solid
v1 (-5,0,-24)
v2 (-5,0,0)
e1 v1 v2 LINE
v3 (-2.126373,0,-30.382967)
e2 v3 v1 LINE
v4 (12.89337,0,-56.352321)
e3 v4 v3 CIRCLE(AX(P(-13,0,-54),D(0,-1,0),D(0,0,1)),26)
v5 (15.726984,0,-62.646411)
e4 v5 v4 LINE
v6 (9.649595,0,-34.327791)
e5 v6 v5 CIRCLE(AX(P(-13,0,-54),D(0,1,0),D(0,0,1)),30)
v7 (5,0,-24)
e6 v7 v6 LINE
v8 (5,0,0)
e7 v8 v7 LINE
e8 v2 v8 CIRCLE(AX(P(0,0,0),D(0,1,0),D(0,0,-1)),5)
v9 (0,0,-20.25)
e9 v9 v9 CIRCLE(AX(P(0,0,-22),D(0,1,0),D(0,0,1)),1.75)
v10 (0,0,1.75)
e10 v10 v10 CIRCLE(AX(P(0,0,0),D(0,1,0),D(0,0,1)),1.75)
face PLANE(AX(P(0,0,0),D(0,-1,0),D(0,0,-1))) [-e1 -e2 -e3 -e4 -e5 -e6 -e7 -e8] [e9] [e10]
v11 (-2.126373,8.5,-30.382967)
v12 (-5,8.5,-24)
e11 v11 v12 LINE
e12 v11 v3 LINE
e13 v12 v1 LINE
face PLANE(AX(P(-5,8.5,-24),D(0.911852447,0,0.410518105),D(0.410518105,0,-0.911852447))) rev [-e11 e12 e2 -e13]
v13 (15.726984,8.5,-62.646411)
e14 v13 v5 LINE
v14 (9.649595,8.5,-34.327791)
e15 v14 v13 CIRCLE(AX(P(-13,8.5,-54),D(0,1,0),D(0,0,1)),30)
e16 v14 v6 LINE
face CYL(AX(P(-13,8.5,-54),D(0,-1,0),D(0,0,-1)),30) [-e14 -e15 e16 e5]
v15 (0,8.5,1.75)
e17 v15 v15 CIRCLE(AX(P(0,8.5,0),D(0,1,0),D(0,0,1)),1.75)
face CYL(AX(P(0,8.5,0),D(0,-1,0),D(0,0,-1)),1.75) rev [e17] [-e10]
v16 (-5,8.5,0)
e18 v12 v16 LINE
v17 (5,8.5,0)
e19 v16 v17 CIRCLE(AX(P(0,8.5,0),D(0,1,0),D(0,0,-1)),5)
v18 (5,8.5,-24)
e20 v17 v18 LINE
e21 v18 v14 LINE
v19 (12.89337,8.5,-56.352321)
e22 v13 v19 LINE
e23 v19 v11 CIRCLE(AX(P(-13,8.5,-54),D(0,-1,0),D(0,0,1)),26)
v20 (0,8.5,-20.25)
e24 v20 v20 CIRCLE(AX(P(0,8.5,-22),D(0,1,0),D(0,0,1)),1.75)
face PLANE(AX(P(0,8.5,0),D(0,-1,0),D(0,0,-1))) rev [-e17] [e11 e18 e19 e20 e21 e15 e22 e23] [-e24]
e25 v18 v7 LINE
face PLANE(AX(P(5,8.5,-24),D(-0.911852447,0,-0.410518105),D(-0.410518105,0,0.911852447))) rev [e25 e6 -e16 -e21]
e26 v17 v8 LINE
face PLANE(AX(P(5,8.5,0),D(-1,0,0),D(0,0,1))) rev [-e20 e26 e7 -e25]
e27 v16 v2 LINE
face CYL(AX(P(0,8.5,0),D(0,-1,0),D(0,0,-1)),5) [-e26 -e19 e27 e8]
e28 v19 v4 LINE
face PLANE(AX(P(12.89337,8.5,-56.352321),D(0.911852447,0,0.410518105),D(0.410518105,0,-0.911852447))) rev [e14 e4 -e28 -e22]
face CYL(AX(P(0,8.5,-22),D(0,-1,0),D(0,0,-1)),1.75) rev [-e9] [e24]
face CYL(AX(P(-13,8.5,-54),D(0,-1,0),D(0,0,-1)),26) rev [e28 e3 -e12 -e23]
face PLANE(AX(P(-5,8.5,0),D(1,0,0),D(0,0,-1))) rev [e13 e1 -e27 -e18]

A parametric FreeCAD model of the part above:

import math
import FreeCAD as App
import Part
import Sketcher

V = App.Vector
Q = App.Units.Quantity

doc = App.newDocument("Part")
params = doc.addObject("Spreadsheet::Sheet", "Params")
for row, (alias, value) in enumerate([
    ("sketch1_radius", "5 mm"),
    ("sketch1_radius2", "30 mm"),
    ("sketch1_radius3", "26 mm"),
    ("sketch1_diameter", "3.5 mm"),
    ("sketch1_height", "24 mm"),
    ("pad1_length", "8.5 mm"),
], start=1):
    params.set(f"A{row}", alias)
    params.set(f"B{row}", "=" + value)
    params.setAlias(f"B{row}", alias)

body = doc.addObject("PartDesign::Body", "Body")

sketch1 = doc.addObject("Sketcher::SketchObject", "Sketch")
body.addObject(sketch1)
sketch1.AttachmentSupport = (doc.XZ_Plane, [""])
sketch1.MapMode = "FlatFace"
sketch1.addGeometry([
    Part.LineSegment(V(-5, -24, 0), V(-5, 0, 0)),
    Part.ArcOfCircle(Part.Circle(V(0, 0, 0), V(0, 0, 1), 5), math.radians(0), math.radians(180)),
    Part.LineSegment(V(5, 0, 0), V(5, -24, 0)),
    Part.LineSegment(V(5, -24, 0), V(9.649595, -34.327791, 0)),
    Part.ArcOfCircle(Part.Circle(V(-13, -54, 0), V(0, 0, 1), 30), math.radians(-16.751042), math.radians(40.975808)),
    Part.LineSegment(V(15.726984, -62.646411, 0), V(12.89337, -56.352321, 0)),
    Part.ArcOfCircle(Part.Circle(V(-13, -54, 0), V(0, 0, 1), 26), math.radians(-5.190869), math.radians(65.277967)),
    Part.LineSegment(V(-2.126373, -30.382967, 0), V(-5, -24, 0)),
    Part.Circle(V(0, 0, 0), V(0, 0, 1), 1.75),
    Part.Circle(V(0, -22, 0), V(0, 0, 1), 1.75),
], False)
sketch1.addConstraint([
    Sketcher.Constraint("Tangent", 0, 2, 1, 2),
    Sketcher.Constraint("Tangent", 1, 1, 2, 1),
    Sketcher.Constraint("Coincident", 2, 2, 3, 1),
    Sketcher.Constraint("Coincident", 3, 2, 4, 2),
    Sketcher.Constraint("Coincident", 4, 1, 5, 1),
    Sketcher.Constraint("Coincident", 5, 2, 6, 1),
    Sketcher.Constraint("Coincident", 6, 2, 7, 1),
    Sketcher.Constraint("Coincident", 7, 2, 0, 1),
    Sketcher.Constraint("Vertical", 0),
    Sketcher.Constraint("Vertical", 2),
    Sketcher.Constraint("Coincident", 1, 3, -1, 1),
    Sketcher.Constraint("Coincident", 8, 3, -1, 1),
    Sketcher.Constraint("Coincident", 6, 3, 4, 3),
    Sketcher.Constraint("Equal", 8, 9),
    Sketcher.Constraint("PointOnObject", 9, 3, -2),
    Sketcher.Constraint("Parallel", 3, 5),
    Sketcher.Constraint("Parallel", 5, 7),
    Sketcher.Constraint("Horizontal", 2, 2, 7, 2),
    Sketcher.Constraint("Radius", 1, Q("5 mm")),
    Sketcher.Constraint("Radius", 4, Q("30 mm")),
    Sketcher.Constraint("Radius", 6, Q("26 mm")),
    Sketcher.Constraint("Diameter", 8, Q("3.5 mm")),
    Sketcher.Constraint("DistanceY", 0, 1, 0, 2, Q("24 mm")),
    Sketcher.Constraint("Distance", 7, Q("7 mm")),
    Sketcher.Constraint("DistanceX", 4, 3, -1, 1, Q("13 mm")),
    Sketcher.Constraint("DistanceY", 4, 3, -1, 1, Q("54 mm")),
    Sketcher.Constraint("DistanceY", 9, 3, -1, 1, Q("22 mm")),
    Sketcher.Constraint("Distance", 5, Q("6.902531 mm")),
])
sketch1.setExpression("Constraints[18]", "Params.sketch1_radius")
sketch1.setExpression("Constraints[19]", "Params.sketch1_radius2")
sketch1.setExpression("Constraints[20]", "Params.sketch1_radius3")
sketch1.setExpression("Constraints[21]", "Params.sketch1_diameter")
sketch1.setExpression("Constraints[22]", "Params.sketch1_height")
pad1 = doc.addObject("PartDesign::Pad", "Pad")
body.addObject(pad1)
pad1.Profile = sketch1
pad1.setExpression("Length", "Params.pad1_length")
pad1.Reversed = True

doc.recompute()
